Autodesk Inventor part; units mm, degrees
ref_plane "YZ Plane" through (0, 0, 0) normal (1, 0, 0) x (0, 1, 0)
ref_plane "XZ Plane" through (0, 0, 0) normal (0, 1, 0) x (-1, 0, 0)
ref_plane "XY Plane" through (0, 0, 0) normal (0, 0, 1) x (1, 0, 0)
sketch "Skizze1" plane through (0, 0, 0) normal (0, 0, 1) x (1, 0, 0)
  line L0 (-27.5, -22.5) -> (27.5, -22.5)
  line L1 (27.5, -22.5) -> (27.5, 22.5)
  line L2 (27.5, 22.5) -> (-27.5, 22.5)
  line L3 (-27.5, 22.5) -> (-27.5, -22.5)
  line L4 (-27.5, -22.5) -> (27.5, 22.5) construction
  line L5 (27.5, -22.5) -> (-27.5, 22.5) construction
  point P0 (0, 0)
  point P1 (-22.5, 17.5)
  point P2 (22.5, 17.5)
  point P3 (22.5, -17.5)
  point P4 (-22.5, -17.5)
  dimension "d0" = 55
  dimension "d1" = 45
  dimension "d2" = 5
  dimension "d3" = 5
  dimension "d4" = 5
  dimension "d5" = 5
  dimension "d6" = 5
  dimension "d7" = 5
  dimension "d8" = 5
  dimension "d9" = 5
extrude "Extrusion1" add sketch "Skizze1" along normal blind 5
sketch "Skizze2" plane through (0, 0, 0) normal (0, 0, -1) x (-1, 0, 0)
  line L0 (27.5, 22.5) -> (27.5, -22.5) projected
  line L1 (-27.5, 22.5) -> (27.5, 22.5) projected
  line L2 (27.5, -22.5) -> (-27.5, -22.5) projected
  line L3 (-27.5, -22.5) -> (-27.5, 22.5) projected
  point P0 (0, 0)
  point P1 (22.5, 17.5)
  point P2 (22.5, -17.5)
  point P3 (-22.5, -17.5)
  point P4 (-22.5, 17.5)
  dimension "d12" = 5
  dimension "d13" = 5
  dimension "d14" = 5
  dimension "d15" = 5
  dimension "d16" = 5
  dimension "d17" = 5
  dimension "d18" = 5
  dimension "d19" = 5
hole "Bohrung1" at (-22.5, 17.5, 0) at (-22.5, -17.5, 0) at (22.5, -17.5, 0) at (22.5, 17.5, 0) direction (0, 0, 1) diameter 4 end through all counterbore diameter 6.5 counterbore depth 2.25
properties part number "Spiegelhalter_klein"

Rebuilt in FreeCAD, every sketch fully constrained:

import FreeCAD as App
import Part
import Sketcher
from FreeCAD import Vector
Q = App.Units.Quantity


def add_polygon(sketch, points):
    """Adds a closed chain of lines whose ends are joined by coincident constraints."""
    first, n = sketch.GeometryCount, len(points)
    for a, b in zip(points, points[1:] + points[:1]):
        sketch.addGeometry(Part.LineSegment(App.Vector(*a, 0), App.Vector(*b, 0)), False)
    for i in range(n):
        sketch.addConstraint(Sketcher.Constraint("Coincident", first + i, 2, first + (i + 1) % n, 1))

doc = App.newDocument("Part")
body = doc.addObject("PartDesign::Body", "Body")

sketch1 = body.newObject("Sketcher::SketchObject", "Sketch")
sketch1.AttachmentSupport = (doc.getObject("XY_Plane"), [""])
sketch1.MapMode = "FlatFace"
add_polygon(sketch1, [(-28, 22), (-28, -22), (28, -22), (28, 22)])
sketch1.addConstraint([
    Sketcher.Constraint("Vertical", 0),
    Sketcher.Constraint("Horizontal", 1),
    Sketcher.Constraint("Vertical", 2),
    Sketcher.Constraint("Horizontal", 3),
    Sketcher.Constraint("Symmetric", 0, 2, 2, 2, -1, 1),
    Sketcher.Constraint("DistanceX", 1, 1, 1, 2, Q("55 mm")),
    Sketcher.Constraint("DistanceY", 0, 2, 0, 1, Q("45 mm")),
])
pad1 = body.newObject("PartDesign::Pad", "Pad")
pad1.Profile = sketch1
pad1.Length = 5

sketch2 = body.newObject("Sketcher::SketchObject", "Sketch001")
sketch2.AttachmentSupport = (doc.getObject("XY_Plane"), [""])
sketch2.MapMode = "FlatFace"
sketch2.addGeometry([
    Part.Circle(Vector(-22.5, 17.5, 0), Vector(0, 0, 1), 2),
    Part.Circle(Vector(-22.5, -17.5, 0), Vector(0, 0, 1), 2),
    Part.Circle(Vector(22.5, -17.5, 0), Vector(0, 0, 1), 2),
    Part.Circle(Vector(22.5, 17.5, 0), Vector(0, 0, 1), 2),
], False)
sketch2.addConstraint([
    Sketcher.Constraint("Equal", 0, 1),
    Sketcher.Constraint("Equal", 1, 2),
    Sketcher.Constraint("Equal", 2, 3),
    Sketcher.Constraint("Symmetric", 0, 3, 2, 3, -1, 1),
    Sketcher.Constraint("Symmetric", 1, 3, 3, 3, -1, 1),
    Sketcher.Constraint("Symmetric", 1, 3, 2, 3, -2),
    Sketcher.Constraint("Diameter", 0, Q("4 mm")),
    Sketcher.Constraint("DistanceY", 1, 3, 0, 3, Q("35 mm")),
    Sketcher.Constraint("DistanceX", 1, 3, 2, 3, Q("45 mm")),
])
doc.recompute()
hole = body.newObject("PartDesign::Hole", "Hole")
hole.Profile = sketch2
hole.ThreadType = "None"
hole.Diameter = 4
hole.DepthType = "ThroughAll"
hole.HoleCutType = "Counterbore"
hole.HoleCutDiameter = 6.5
hole.HoleCutDepth = 2.25
hole.Reversed = True

doc.recompute()
